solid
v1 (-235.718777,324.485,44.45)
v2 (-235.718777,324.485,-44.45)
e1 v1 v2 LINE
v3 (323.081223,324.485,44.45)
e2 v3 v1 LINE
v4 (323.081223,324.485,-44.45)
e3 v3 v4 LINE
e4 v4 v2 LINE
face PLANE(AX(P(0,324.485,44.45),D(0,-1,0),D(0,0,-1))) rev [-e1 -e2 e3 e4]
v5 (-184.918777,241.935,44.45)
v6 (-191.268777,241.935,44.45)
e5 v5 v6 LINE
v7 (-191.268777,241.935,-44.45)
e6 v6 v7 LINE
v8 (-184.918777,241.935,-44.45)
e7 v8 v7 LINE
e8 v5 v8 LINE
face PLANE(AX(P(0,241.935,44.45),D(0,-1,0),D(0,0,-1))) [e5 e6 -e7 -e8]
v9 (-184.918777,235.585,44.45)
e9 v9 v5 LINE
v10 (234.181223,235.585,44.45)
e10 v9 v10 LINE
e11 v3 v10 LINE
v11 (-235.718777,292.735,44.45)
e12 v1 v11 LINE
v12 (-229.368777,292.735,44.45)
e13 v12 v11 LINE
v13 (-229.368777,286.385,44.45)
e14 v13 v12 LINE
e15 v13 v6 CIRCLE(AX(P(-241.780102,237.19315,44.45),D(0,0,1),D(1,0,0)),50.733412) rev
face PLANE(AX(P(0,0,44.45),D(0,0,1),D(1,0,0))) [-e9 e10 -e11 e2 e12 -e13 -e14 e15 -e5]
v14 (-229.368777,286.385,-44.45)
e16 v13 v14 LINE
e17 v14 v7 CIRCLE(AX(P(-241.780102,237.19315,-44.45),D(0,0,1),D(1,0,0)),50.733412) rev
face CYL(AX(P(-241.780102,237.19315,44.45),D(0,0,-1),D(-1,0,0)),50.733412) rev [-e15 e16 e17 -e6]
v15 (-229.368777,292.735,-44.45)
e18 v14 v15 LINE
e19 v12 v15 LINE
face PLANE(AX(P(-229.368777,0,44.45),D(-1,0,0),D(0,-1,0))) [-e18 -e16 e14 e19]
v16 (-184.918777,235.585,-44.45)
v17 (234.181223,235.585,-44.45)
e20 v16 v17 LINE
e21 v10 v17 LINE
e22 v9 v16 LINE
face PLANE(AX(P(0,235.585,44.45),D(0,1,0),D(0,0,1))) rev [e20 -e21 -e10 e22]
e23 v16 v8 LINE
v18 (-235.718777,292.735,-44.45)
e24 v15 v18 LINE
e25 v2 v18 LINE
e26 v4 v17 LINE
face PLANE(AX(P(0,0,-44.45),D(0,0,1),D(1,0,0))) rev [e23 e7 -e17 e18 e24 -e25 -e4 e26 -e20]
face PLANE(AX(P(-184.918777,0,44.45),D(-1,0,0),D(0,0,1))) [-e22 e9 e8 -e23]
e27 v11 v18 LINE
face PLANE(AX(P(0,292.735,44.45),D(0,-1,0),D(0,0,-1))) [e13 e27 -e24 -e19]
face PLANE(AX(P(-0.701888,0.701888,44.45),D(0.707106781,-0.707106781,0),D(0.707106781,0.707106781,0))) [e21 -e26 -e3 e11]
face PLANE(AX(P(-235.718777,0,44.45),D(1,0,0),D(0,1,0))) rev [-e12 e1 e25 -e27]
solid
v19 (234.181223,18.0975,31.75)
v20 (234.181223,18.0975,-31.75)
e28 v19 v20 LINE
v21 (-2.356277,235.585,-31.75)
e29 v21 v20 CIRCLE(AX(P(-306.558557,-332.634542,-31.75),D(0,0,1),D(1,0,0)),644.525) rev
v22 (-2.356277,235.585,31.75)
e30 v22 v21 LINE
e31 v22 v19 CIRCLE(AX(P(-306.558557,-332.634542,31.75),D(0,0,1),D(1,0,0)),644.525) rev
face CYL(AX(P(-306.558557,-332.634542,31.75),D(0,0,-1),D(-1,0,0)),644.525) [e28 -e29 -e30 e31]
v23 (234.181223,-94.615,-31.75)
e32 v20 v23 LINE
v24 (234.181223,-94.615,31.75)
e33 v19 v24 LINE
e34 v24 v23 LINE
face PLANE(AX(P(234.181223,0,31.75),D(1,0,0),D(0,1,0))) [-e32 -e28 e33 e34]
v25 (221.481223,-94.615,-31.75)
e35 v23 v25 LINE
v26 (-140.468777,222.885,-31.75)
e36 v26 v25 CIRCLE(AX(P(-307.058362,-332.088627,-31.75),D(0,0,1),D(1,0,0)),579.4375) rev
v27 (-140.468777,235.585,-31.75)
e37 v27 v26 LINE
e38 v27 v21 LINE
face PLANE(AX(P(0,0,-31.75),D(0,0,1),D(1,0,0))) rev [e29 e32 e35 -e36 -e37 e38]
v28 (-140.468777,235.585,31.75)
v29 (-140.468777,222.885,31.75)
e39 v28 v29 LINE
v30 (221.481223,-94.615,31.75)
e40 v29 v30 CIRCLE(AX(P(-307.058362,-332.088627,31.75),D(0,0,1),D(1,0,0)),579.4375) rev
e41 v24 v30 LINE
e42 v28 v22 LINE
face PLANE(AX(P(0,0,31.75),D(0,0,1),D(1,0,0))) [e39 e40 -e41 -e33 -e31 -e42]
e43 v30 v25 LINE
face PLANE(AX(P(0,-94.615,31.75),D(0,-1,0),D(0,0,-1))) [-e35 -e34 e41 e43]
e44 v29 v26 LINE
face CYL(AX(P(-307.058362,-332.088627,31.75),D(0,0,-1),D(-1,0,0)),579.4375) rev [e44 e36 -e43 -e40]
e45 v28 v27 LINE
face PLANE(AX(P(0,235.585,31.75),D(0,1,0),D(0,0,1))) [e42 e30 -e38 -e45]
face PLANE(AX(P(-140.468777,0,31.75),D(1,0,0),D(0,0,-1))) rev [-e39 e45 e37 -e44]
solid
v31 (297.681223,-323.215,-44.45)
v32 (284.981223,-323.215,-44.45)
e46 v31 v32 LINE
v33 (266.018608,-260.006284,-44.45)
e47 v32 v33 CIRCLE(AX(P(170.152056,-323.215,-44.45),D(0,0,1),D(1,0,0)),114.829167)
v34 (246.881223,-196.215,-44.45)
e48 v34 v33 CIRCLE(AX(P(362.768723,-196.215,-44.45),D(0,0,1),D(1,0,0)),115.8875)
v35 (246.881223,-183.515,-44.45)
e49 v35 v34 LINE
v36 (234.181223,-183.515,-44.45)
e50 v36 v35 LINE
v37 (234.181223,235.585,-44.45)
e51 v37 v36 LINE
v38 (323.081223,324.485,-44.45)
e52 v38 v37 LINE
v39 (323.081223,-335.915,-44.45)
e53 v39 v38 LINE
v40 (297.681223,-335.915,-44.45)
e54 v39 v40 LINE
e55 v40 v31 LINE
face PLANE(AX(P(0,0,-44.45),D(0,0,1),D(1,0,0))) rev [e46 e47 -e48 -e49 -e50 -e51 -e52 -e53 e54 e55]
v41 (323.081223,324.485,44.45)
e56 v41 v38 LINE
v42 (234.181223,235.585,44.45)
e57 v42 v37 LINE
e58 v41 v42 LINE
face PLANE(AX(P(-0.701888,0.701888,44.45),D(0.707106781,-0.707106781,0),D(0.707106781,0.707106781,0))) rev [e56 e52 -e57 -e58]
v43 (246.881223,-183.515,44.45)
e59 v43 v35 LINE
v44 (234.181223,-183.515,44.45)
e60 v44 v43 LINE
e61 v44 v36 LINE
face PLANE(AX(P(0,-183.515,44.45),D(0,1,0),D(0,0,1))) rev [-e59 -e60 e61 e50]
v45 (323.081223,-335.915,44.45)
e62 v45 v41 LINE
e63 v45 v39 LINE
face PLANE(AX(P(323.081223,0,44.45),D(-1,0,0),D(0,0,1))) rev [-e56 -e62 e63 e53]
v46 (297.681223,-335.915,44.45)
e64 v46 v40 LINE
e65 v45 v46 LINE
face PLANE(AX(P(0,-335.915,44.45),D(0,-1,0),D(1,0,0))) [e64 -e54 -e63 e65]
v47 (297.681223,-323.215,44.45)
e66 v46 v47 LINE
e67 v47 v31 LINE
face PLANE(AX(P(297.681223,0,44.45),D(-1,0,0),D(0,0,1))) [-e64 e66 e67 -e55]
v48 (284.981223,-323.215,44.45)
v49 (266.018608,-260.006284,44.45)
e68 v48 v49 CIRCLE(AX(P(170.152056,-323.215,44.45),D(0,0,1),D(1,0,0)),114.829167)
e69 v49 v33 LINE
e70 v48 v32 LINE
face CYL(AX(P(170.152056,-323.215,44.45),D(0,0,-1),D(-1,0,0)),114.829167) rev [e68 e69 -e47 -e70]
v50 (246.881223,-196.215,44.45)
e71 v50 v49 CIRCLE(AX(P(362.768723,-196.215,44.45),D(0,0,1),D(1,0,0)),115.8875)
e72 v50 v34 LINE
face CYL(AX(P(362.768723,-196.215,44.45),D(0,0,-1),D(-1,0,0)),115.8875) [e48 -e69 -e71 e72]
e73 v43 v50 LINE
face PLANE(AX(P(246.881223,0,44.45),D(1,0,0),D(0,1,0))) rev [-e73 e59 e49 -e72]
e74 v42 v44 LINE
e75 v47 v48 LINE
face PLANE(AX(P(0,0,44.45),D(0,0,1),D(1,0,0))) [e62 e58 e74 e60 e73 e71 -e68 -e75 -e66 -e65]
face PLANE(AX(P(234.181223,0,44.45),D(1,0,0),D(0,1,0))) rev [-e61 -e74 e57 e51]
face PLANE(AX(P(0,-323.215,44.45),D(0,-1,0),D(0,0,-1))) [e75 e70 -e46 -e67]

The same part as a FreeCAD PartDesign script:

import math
import FreeCAD as App
import Part
import Sketcher
from FreeCAD import Vector
Q = App.Units.Quantity

doc = App.newDocument("Part")
params = doc.addObject("Spreadsheet::Sheet", "Params")
for row, (alias, value) in enumerate([
    ("sketch1_width", "22 in"),
    ("sketch1_width2", "16.5 in"),
    ("sketch1_width3", "0.25 in"),
    ("pad1_length", "3.5 in"),
    ("sketch2_width", "0.5 in"),
    ("sketch2_radius", "25.375 in"),
    ("sketch2_radius2", "22.8125 in"),
    ("sketch2_width2", "5.4375 in"),
    ("sketch2_height", "4.4375 in"),
    ("pad2_length", "2.5 in"),
    ("sketch3_width", "1 in"),
    ("sketch3_height", "26 in"),
    ("sketch3_width2", "0.5 in"),
    ("sketch3_height2", "16.5 in"),
    ("sketch3_radius", "4.5625 in"),
    ("pad3_length", "3.5 in"),
], start=1):
    params.set(f"A{row}", alias)
    params.set(f"B{row}", "=" + value)
    params.setAlias(f"B{row}", alias)

body = doc.addObject("PartDesign::Body", "Body")

# Sketch on XY plane
sketch1 = body.newObject("Sketcher::SketchObject", "Sketch")
sketch1.AttachmentSupport = (doc.getObject("XY_Plane"), [""])
sketch1.MapMode = "FlatFace"
sketch1.addGeometry(Part.LineSegment(Vector(-229.368777, 292.735, 0), Vector(-229.368777, 286.385, 0)), False)
sketch1.addGeometry(Part.ArcOfCircle(Part.Circle(Vector(-241.780102, 237.19315, 0), Vector(0, 0, 1), 50.733412), math.radians(5.363036), math.radians(75.839553)), False)
sketch1.addGeometry(Part.LineSegment(Vector(-191.268777, 241.935, 0), Vector(-184.918777, 241.935, 0)), False)
sketch1.addGeometry(Part.LineSegment(Vector(-184.918777, 241.935, 0), Vector(-184.918777, 235.585, 0)), False)
sketch1.addGeometry(Part.LineSegment(Vector(-184.918777, 235.585, 0), Vector(234.181223, 235.585, 0)), False)
sketch1.addGeometry(Part.LineSegment(Vector(234.181223, 235.585, 0), Vector(323.081223, 324.485, 0)), False)
sketch1.addGeometry(Part.LineSegment(Vector(323.081223, 324.485, 0), Vector(-235.718777, 324.485, 0)), False)
sketch1.addGeometry(Part.LineSegment(Vector(-235.718777, 324.485, 0), Vector(-235.718777, 292.735, 0)), False)
sketch1.addGeometry(Part.LineSegment(Vector(-235.718777, 292.735, 0), Vector(-229.368777, 292.735, 0)), False)
sketch1.addConstraint(Sketcher.Constraint("Coincident", 0, 2, 1, 2))
sketch1.addConstraint(Sketcher.Constraint("Coincident", 1, 1, 2, 1))
sketch1.addConstraint(Sketcher.Constraint("Coincident", 2, 2, 3, 1))
sketch1.addConstraint(Sketcher.Constraint("Coincident", 3, 2, 4, 1))
sketch1.addConstraint(Sketcher.Constraint("Coincident", 4, 2, 5, 1))
sketch1.addConstraint(Sketcher.Constraint("Coincident", 5, 2, 6, 1))
sketch1.addConstraint(Sketcher.Constraint("Coincident", 6, 2, 7, 1))
sketch1.addConstraint(Sketcher.Constraint("Coincident", 7, 2, 8, 1))
sketch1.addConstraint(Sketcher.Constraint("Coincident", 8, 2, 0, 1))
sketch1.addConstraint(Sketcher.Constraint("Vertical", 0))
sketch1.addConstraint(Sketcher.Constraint("Horizontal", 2))
sketch1.addConstraint(Sketcher.Constraint("Vertical", 3))
sketch1.addConstraint(Sketcher.Constraint("Horizontal", 4))
sketch1.addConstraint(Sketcher.Constraint("Horizontal", 6))
sketch1.addConstraint(Sketcher.Constraint("Vertical", 7))
sketch1.addConstraint(Sketcher.Constraint("Horizontal", 8))
sketch1.addConstraint(Sketcher.Constraint("Equal", 2, 8))
sketch1.addConstraint(Sketcher.Constraint("Equal", 8, 0))
sketch1.addConstraint(Sketcher.Constraint("Equal", 0, 3))
sketch1.addConstraint(Sketcher.Constraint("DistanceX", 6, 2, 6, 1, Q("22 in")))
sketch1.addConstraint(Sketcher.Constraint("DistanceX", 4, 1, 4, 2, Q("16.5 in")))
sketch1.addConstraint(Sketcher.Constraint("Angle", 5, Q("45 deg")))
sketch1.addConstraint(Sketcher.Constraint("DistanceY", 3, 2, 0, 2, Q("2 in")))
sketch1.addConstraint(Sketcher.Constraint("DistanceX", 2, 2, 5, 2, Q("20 in")))
sketch1.addConstraint(Sketcher.Constraint("DistanceX", 2, 1, 2, 2, Q("0.25 in")))
sketch1.addConstraint(Sketcher.Constraint("DistanceY", -1, 1, 0, 2, Q("11.275 in")))
sketch1.addConstraint(Sketcher.Constraint("Radius", 1, 50.733412))
sketch1.addConstraint(Sketcher.Constraint("DistanceX", 1, 3, -1, 1, 241.780102))
sketch1.setExpression("Constraints[19]", "Params.sketch1_width")
sketch1.setExpression("Constraints[20]", "Params.sketch1_width2")
sketch1.setExpression("Constraints[24]", "Params.sketch1_width3")
pad1 = body.newObject("PartDesign::Pad", "Pad")
pad1.Profile = sketch1
pad1.setExpression("Length", "Params.pad1_length")
pad1.Midplane = True
body2 = doc.addObject("PartDesign::Body", "Body001")

# Sketch on XY plane
sketch2 = body2.newObject("Sketcher::SketchObject", "Sketch001")
sketch2.AttachmentSupport = (doc.getObject("XY_Plane001"), [""])
sketch2.MapMode = "FlatFace"
sketch2.addGeometry(Part.ArcOfCircle(Part.Circle(Vector(-306.558557, -332.634542, 0), Vector(0, 0, 1), 644.525), math.radians(32.968055), math.radians(61.837164)), False)
sketch2.addGeometry(Part.LineSegment(Vector(-2.356277, 235.585, 0), Vector(-140.468777, 235.585, 0)), False)
sketch2.addGeometry(Part.LineSegment(Vector(-140.468777, 235.585, 0), Vector(-140.468777, 222.885, 0)), False)
sketch2.addGeometry(Part.ArcOfCircle(Part.Circle(Vector(-307.058362, -332.088627, 0), Vector(0, 0, 1), 579.4375), math.radians(24.194455), math.radians(73.291522)), False)
sketch2.addGeometry(Part.LineSegment(Vector(221.481223, -94.615, 0), Vector(234.181223, -94.615, 0)), False)
sketch2.addGeometry(Part.LineSegment(Vector(234.181223, -94.615, 0), Vector(234.181223, 18.0975, 0)), False)
sketch2.addConstraint(Sketcher.Constraint("Coincident", 0, 2, 1, 1))
sketch2.addConstraint(Sketcher.Constraint("Coincident", 1, 2, 2, 1))
sketch2.addConstraint(Sketcher.Constraint("Coincident", 2, 2, 3, 2))
sketch2.addConstraint(Sketcher.Constraint("Coincident", 3, 1, 4, 1))
sketch2.addConstraint(Sketcher.Constraint("Coincident", 4, 2, 5, 1))
sketch2.addConstraint(Sketcher.Constraint("Coincident", 5, 2, 0, 1))
sketch2.addConstraint(Sketcher.Constraint("Horizontal", 1))
sketch2.addConstraint(Sketcher.Constraint("Vertical", 2))
sketch2.addConstraint(Sketcher.Constraint("Horizontal", 4))
sketch2.addConstraint(Sketcher.Constraint("Vertical", 5))
sketch2.addConstraint(Sketcher.Constraint("Equal", 4, 2))
sketch2.addConstraint(Sketcher.Constraint("DistanceX", 4, 1, 4, 2, Q("0.5 in")))
sketch2.addConstraint(Sketcher.Constraint("Radius", 0, Q("25.375 in")))
sketch2.addConstraint(Sketcher.Constraint("Radius", 3, Q("22.8125 in")))
sketch2.addConstraint(Sketcher.Constraint("DistanceY", 4, 2, 0, 2, Q("13 in")))
sketch2.addConstraint(Sketcher.Constraint("DistanceX", 1, 2, 1, 1, Q("5.4375 in")))
sketch2.addConstraint(Sketcher.Constraint("DistanceY", 5, 1, 5, 2, Q("4.4375 in")))
sketch2.addConstraint(Sketcher.Constraint("DistanceX", 2, 2, 3, 1, Q("14.25 in")))
sketch2.addConstraint(Sketcher.Constraint("DistanceY", -1, 1, 1, 2, Q("9.275 in")))
sketch2.addConstraint(Sketcher.Constraint("DistanceX", 0, 3, -1, 1, 306.558557))
sketch2.setExpression("Constraints[11]", "Params.sketch2_width")
sketch2.setExpression("Constraints[12]", "Params.sketch2_radius")
sketch2.setExpression("Constraints[13]", "Params.sketch2_radius2")
sketch2.setExpression("Constraints[15]", "Params.sketch2_width2")
sketch2.setExpression("Constraints[16]", "Params.sketch2_height")
pad2 = body2.newObject("PartDesign::Pad", "Pad001")
pad2.Profile = sketch2
pad2.setExpression("Length", "Params.pad2_length")
pad2.Midplane = True
body3 = doc.addObject("PartDesign::Body", "Body002")

# Sketch on XY plane
sketch3 = body3.newObject("Sketcher::SketchObject", "Sketch002")
sketch3.AttachmentSupport = (doc.getObject("XY_Plane002"), [""])
sketch3.MapMode = "FlatFace"
sketch3.addGeometry(Part.LineSegment(Vector(323.081223, -335.915, 0), Vector(323.081223, 324.485, 0)), False)
sketch3.addGeometry(Part.LineSegment(Vector(323.081223, 324.485, 0), Vector(234.181223, 235.585, 0)), False)
sketch3.addGeometry(Part.LineSegment(Vector(234.181223, 235.585, 0), Vector(234.181223, -183.515, 0)), False)
sketch3.addGeometry(Part.LineSegment(Vector(234.181223, -183.515, 0), Vector(246.881223, -183.515, 0)), False)
sketch3.addGeometry(Part.LineSegment(Vector(246.881223, -183.515, 0), Vector(246.881223, -196.215, 0)), False)
sketch3.addGeometry(Part.ArcOfCircle(Part.Circle(Vector(362.768723, -196.215, 0), Vector(0, 0, 1), 115.8875), math.radians(180), math.radians(213.398488)), False)
sketch3.addGeometry(Part.ArcOfCircle(Part.Circle(Vector(170.152056, -323.215, 0), Vector(0, 0, 1), 114.829167), math.radians(0), math.radians(33.398488)), False)
sketch3.addGeometry(Part.LineSegment(Vector(284.981223, -323.215, 0), Vector(297.681223, -323.215, 0)), False)
sketch3.addGeometry(Part.LineSegment(Vector(297.681223, -323.215, 0), Vector(297.681223, -335.915, 0)), False)
sketch3.addGeometry(Part.LineSegment(Vector(297.681223, -335.915, 0), Vector(323.081223, -335.915, 0)), False)
sketch3.addConstraint(Sketcher.Constraint("Coincident", 0, 2, 1, 1))
sketch3.addConstraint(Sketcher.Constraint("Coincident", 1, 2, 2, 1))
sketch3.addConstraint(Sketcher.Constraint("Coincident", 2, 2, 3, 1))
sketch3.addConstraint(Sketcher.Constraint("Coincident", 3, 2, 4, 1))
sketch3.addConstraint(Sketcher.Constraint("Tangent", 4, 2, 5, 1))
sketch3.addConstraint(Sketcher.Constraint("Tangent", 5, 2, 6, 2))
sketch3.addConstraint(Sketcher.Constraint("Coincident", 6, 1, 7, 1))
sketch3.addConstraint(Sketcher.Constraint("Coincident", 7, 2, 8, 1))
sketch3.addConstraint(Sketcher.Constraint("Coincident", 8, 2, 9, 1))
sketch3.addConstraint(Sketcher.Constraint("Coincident", 9, 2, 0, 1))
sketch3.addConstraint(Sketcher.Constraint("Vertical", 0))
sketch3.addConstraint(Sketcher.Constraint("Vertical", 2))
sketch3.addConstraint(Sketcher.Constraint("Horizontal", 3))
sketch3.addConstraint(Sketcher.Constraint("Vertical", 4))
sketch3.addConstraint(Sketcher.Constraint("Horizontal", 7))
sketch3.addConstraint(Sketcher.Constraint("Vertical", 8))
sketch3.addConstraint(Sketcher.Constraint("Horizontal", 9))
sketch3.addConstraint(Sketcher.Constraint("Equal", 3, 7))
sketch3.addConstraint(Sketcher.Constraint("Equal", 7, 4))
sketch3.addConstraint(Sketcher.Constraint("Equal", 4, 8))
sketch3.addConstraint(Sketcher.Constraint("DistanceX", 9, 1, 9, 2, Q("1 in")))
sketch3.addConstraint(Sketcher.Constraint("DistanceY", 0, 1, 0, 2, Q("26 in")))
sketch3.addConstraint(Sketcher.Constraint("DistanceX", 3, 1, 3, 2, Q("0.5 in")))
sketch3.addConstraint(Sketcher.Constraint("DistanceY", 2, 2, 2, 1, Q("16.5 in")))
sketch3.addConstraint(Sketcher.Constraint("Angle", 1, Q("-135 deg")))
sketch3.addConstraint(Sketcher.Constraint("Radius", 5, Q("4.5625 in")))
sketch3.addConstraint(Sketcher.Constraint("DistanceY", 6, 3, 5, 3, Q("5 in")))
sketch3.addConstraint(Sketcher.Constraint("DistanceY", 2, 2, 0, 2, Q("20 in")))
sketch3.addConstraint(Sketcher.Constraint("DistanceY", 5, 3, -1, 1, Q("7.725 in")))
sketch3.addConstraint(Sketcher.Constraint("DistanceX", -1, 1, 6, 3, Q("6.6988999 in")))
sketch3.setExpression("Constraints[20]", "Params.sketch3_width")
sketch3.setExpression("Constraints[21]", "Params.sketch3_height")
sketch3.setExpression("Constraints[22]", "Params.sketch3_width2")
sketch3.setExpression("Constraints[23]", "Params.sketch3_height2")
sketch3.setExpression("Constraints[25]", "Params.sketch3_radius")
pad3 = body3.newObject("PartDesign::Pad", "Pad002")
pad3.Profile = sketch3
pad3.setExpression("Length", "Params.pad3_length")
pad3.Midplane = True

doc.recompute()
